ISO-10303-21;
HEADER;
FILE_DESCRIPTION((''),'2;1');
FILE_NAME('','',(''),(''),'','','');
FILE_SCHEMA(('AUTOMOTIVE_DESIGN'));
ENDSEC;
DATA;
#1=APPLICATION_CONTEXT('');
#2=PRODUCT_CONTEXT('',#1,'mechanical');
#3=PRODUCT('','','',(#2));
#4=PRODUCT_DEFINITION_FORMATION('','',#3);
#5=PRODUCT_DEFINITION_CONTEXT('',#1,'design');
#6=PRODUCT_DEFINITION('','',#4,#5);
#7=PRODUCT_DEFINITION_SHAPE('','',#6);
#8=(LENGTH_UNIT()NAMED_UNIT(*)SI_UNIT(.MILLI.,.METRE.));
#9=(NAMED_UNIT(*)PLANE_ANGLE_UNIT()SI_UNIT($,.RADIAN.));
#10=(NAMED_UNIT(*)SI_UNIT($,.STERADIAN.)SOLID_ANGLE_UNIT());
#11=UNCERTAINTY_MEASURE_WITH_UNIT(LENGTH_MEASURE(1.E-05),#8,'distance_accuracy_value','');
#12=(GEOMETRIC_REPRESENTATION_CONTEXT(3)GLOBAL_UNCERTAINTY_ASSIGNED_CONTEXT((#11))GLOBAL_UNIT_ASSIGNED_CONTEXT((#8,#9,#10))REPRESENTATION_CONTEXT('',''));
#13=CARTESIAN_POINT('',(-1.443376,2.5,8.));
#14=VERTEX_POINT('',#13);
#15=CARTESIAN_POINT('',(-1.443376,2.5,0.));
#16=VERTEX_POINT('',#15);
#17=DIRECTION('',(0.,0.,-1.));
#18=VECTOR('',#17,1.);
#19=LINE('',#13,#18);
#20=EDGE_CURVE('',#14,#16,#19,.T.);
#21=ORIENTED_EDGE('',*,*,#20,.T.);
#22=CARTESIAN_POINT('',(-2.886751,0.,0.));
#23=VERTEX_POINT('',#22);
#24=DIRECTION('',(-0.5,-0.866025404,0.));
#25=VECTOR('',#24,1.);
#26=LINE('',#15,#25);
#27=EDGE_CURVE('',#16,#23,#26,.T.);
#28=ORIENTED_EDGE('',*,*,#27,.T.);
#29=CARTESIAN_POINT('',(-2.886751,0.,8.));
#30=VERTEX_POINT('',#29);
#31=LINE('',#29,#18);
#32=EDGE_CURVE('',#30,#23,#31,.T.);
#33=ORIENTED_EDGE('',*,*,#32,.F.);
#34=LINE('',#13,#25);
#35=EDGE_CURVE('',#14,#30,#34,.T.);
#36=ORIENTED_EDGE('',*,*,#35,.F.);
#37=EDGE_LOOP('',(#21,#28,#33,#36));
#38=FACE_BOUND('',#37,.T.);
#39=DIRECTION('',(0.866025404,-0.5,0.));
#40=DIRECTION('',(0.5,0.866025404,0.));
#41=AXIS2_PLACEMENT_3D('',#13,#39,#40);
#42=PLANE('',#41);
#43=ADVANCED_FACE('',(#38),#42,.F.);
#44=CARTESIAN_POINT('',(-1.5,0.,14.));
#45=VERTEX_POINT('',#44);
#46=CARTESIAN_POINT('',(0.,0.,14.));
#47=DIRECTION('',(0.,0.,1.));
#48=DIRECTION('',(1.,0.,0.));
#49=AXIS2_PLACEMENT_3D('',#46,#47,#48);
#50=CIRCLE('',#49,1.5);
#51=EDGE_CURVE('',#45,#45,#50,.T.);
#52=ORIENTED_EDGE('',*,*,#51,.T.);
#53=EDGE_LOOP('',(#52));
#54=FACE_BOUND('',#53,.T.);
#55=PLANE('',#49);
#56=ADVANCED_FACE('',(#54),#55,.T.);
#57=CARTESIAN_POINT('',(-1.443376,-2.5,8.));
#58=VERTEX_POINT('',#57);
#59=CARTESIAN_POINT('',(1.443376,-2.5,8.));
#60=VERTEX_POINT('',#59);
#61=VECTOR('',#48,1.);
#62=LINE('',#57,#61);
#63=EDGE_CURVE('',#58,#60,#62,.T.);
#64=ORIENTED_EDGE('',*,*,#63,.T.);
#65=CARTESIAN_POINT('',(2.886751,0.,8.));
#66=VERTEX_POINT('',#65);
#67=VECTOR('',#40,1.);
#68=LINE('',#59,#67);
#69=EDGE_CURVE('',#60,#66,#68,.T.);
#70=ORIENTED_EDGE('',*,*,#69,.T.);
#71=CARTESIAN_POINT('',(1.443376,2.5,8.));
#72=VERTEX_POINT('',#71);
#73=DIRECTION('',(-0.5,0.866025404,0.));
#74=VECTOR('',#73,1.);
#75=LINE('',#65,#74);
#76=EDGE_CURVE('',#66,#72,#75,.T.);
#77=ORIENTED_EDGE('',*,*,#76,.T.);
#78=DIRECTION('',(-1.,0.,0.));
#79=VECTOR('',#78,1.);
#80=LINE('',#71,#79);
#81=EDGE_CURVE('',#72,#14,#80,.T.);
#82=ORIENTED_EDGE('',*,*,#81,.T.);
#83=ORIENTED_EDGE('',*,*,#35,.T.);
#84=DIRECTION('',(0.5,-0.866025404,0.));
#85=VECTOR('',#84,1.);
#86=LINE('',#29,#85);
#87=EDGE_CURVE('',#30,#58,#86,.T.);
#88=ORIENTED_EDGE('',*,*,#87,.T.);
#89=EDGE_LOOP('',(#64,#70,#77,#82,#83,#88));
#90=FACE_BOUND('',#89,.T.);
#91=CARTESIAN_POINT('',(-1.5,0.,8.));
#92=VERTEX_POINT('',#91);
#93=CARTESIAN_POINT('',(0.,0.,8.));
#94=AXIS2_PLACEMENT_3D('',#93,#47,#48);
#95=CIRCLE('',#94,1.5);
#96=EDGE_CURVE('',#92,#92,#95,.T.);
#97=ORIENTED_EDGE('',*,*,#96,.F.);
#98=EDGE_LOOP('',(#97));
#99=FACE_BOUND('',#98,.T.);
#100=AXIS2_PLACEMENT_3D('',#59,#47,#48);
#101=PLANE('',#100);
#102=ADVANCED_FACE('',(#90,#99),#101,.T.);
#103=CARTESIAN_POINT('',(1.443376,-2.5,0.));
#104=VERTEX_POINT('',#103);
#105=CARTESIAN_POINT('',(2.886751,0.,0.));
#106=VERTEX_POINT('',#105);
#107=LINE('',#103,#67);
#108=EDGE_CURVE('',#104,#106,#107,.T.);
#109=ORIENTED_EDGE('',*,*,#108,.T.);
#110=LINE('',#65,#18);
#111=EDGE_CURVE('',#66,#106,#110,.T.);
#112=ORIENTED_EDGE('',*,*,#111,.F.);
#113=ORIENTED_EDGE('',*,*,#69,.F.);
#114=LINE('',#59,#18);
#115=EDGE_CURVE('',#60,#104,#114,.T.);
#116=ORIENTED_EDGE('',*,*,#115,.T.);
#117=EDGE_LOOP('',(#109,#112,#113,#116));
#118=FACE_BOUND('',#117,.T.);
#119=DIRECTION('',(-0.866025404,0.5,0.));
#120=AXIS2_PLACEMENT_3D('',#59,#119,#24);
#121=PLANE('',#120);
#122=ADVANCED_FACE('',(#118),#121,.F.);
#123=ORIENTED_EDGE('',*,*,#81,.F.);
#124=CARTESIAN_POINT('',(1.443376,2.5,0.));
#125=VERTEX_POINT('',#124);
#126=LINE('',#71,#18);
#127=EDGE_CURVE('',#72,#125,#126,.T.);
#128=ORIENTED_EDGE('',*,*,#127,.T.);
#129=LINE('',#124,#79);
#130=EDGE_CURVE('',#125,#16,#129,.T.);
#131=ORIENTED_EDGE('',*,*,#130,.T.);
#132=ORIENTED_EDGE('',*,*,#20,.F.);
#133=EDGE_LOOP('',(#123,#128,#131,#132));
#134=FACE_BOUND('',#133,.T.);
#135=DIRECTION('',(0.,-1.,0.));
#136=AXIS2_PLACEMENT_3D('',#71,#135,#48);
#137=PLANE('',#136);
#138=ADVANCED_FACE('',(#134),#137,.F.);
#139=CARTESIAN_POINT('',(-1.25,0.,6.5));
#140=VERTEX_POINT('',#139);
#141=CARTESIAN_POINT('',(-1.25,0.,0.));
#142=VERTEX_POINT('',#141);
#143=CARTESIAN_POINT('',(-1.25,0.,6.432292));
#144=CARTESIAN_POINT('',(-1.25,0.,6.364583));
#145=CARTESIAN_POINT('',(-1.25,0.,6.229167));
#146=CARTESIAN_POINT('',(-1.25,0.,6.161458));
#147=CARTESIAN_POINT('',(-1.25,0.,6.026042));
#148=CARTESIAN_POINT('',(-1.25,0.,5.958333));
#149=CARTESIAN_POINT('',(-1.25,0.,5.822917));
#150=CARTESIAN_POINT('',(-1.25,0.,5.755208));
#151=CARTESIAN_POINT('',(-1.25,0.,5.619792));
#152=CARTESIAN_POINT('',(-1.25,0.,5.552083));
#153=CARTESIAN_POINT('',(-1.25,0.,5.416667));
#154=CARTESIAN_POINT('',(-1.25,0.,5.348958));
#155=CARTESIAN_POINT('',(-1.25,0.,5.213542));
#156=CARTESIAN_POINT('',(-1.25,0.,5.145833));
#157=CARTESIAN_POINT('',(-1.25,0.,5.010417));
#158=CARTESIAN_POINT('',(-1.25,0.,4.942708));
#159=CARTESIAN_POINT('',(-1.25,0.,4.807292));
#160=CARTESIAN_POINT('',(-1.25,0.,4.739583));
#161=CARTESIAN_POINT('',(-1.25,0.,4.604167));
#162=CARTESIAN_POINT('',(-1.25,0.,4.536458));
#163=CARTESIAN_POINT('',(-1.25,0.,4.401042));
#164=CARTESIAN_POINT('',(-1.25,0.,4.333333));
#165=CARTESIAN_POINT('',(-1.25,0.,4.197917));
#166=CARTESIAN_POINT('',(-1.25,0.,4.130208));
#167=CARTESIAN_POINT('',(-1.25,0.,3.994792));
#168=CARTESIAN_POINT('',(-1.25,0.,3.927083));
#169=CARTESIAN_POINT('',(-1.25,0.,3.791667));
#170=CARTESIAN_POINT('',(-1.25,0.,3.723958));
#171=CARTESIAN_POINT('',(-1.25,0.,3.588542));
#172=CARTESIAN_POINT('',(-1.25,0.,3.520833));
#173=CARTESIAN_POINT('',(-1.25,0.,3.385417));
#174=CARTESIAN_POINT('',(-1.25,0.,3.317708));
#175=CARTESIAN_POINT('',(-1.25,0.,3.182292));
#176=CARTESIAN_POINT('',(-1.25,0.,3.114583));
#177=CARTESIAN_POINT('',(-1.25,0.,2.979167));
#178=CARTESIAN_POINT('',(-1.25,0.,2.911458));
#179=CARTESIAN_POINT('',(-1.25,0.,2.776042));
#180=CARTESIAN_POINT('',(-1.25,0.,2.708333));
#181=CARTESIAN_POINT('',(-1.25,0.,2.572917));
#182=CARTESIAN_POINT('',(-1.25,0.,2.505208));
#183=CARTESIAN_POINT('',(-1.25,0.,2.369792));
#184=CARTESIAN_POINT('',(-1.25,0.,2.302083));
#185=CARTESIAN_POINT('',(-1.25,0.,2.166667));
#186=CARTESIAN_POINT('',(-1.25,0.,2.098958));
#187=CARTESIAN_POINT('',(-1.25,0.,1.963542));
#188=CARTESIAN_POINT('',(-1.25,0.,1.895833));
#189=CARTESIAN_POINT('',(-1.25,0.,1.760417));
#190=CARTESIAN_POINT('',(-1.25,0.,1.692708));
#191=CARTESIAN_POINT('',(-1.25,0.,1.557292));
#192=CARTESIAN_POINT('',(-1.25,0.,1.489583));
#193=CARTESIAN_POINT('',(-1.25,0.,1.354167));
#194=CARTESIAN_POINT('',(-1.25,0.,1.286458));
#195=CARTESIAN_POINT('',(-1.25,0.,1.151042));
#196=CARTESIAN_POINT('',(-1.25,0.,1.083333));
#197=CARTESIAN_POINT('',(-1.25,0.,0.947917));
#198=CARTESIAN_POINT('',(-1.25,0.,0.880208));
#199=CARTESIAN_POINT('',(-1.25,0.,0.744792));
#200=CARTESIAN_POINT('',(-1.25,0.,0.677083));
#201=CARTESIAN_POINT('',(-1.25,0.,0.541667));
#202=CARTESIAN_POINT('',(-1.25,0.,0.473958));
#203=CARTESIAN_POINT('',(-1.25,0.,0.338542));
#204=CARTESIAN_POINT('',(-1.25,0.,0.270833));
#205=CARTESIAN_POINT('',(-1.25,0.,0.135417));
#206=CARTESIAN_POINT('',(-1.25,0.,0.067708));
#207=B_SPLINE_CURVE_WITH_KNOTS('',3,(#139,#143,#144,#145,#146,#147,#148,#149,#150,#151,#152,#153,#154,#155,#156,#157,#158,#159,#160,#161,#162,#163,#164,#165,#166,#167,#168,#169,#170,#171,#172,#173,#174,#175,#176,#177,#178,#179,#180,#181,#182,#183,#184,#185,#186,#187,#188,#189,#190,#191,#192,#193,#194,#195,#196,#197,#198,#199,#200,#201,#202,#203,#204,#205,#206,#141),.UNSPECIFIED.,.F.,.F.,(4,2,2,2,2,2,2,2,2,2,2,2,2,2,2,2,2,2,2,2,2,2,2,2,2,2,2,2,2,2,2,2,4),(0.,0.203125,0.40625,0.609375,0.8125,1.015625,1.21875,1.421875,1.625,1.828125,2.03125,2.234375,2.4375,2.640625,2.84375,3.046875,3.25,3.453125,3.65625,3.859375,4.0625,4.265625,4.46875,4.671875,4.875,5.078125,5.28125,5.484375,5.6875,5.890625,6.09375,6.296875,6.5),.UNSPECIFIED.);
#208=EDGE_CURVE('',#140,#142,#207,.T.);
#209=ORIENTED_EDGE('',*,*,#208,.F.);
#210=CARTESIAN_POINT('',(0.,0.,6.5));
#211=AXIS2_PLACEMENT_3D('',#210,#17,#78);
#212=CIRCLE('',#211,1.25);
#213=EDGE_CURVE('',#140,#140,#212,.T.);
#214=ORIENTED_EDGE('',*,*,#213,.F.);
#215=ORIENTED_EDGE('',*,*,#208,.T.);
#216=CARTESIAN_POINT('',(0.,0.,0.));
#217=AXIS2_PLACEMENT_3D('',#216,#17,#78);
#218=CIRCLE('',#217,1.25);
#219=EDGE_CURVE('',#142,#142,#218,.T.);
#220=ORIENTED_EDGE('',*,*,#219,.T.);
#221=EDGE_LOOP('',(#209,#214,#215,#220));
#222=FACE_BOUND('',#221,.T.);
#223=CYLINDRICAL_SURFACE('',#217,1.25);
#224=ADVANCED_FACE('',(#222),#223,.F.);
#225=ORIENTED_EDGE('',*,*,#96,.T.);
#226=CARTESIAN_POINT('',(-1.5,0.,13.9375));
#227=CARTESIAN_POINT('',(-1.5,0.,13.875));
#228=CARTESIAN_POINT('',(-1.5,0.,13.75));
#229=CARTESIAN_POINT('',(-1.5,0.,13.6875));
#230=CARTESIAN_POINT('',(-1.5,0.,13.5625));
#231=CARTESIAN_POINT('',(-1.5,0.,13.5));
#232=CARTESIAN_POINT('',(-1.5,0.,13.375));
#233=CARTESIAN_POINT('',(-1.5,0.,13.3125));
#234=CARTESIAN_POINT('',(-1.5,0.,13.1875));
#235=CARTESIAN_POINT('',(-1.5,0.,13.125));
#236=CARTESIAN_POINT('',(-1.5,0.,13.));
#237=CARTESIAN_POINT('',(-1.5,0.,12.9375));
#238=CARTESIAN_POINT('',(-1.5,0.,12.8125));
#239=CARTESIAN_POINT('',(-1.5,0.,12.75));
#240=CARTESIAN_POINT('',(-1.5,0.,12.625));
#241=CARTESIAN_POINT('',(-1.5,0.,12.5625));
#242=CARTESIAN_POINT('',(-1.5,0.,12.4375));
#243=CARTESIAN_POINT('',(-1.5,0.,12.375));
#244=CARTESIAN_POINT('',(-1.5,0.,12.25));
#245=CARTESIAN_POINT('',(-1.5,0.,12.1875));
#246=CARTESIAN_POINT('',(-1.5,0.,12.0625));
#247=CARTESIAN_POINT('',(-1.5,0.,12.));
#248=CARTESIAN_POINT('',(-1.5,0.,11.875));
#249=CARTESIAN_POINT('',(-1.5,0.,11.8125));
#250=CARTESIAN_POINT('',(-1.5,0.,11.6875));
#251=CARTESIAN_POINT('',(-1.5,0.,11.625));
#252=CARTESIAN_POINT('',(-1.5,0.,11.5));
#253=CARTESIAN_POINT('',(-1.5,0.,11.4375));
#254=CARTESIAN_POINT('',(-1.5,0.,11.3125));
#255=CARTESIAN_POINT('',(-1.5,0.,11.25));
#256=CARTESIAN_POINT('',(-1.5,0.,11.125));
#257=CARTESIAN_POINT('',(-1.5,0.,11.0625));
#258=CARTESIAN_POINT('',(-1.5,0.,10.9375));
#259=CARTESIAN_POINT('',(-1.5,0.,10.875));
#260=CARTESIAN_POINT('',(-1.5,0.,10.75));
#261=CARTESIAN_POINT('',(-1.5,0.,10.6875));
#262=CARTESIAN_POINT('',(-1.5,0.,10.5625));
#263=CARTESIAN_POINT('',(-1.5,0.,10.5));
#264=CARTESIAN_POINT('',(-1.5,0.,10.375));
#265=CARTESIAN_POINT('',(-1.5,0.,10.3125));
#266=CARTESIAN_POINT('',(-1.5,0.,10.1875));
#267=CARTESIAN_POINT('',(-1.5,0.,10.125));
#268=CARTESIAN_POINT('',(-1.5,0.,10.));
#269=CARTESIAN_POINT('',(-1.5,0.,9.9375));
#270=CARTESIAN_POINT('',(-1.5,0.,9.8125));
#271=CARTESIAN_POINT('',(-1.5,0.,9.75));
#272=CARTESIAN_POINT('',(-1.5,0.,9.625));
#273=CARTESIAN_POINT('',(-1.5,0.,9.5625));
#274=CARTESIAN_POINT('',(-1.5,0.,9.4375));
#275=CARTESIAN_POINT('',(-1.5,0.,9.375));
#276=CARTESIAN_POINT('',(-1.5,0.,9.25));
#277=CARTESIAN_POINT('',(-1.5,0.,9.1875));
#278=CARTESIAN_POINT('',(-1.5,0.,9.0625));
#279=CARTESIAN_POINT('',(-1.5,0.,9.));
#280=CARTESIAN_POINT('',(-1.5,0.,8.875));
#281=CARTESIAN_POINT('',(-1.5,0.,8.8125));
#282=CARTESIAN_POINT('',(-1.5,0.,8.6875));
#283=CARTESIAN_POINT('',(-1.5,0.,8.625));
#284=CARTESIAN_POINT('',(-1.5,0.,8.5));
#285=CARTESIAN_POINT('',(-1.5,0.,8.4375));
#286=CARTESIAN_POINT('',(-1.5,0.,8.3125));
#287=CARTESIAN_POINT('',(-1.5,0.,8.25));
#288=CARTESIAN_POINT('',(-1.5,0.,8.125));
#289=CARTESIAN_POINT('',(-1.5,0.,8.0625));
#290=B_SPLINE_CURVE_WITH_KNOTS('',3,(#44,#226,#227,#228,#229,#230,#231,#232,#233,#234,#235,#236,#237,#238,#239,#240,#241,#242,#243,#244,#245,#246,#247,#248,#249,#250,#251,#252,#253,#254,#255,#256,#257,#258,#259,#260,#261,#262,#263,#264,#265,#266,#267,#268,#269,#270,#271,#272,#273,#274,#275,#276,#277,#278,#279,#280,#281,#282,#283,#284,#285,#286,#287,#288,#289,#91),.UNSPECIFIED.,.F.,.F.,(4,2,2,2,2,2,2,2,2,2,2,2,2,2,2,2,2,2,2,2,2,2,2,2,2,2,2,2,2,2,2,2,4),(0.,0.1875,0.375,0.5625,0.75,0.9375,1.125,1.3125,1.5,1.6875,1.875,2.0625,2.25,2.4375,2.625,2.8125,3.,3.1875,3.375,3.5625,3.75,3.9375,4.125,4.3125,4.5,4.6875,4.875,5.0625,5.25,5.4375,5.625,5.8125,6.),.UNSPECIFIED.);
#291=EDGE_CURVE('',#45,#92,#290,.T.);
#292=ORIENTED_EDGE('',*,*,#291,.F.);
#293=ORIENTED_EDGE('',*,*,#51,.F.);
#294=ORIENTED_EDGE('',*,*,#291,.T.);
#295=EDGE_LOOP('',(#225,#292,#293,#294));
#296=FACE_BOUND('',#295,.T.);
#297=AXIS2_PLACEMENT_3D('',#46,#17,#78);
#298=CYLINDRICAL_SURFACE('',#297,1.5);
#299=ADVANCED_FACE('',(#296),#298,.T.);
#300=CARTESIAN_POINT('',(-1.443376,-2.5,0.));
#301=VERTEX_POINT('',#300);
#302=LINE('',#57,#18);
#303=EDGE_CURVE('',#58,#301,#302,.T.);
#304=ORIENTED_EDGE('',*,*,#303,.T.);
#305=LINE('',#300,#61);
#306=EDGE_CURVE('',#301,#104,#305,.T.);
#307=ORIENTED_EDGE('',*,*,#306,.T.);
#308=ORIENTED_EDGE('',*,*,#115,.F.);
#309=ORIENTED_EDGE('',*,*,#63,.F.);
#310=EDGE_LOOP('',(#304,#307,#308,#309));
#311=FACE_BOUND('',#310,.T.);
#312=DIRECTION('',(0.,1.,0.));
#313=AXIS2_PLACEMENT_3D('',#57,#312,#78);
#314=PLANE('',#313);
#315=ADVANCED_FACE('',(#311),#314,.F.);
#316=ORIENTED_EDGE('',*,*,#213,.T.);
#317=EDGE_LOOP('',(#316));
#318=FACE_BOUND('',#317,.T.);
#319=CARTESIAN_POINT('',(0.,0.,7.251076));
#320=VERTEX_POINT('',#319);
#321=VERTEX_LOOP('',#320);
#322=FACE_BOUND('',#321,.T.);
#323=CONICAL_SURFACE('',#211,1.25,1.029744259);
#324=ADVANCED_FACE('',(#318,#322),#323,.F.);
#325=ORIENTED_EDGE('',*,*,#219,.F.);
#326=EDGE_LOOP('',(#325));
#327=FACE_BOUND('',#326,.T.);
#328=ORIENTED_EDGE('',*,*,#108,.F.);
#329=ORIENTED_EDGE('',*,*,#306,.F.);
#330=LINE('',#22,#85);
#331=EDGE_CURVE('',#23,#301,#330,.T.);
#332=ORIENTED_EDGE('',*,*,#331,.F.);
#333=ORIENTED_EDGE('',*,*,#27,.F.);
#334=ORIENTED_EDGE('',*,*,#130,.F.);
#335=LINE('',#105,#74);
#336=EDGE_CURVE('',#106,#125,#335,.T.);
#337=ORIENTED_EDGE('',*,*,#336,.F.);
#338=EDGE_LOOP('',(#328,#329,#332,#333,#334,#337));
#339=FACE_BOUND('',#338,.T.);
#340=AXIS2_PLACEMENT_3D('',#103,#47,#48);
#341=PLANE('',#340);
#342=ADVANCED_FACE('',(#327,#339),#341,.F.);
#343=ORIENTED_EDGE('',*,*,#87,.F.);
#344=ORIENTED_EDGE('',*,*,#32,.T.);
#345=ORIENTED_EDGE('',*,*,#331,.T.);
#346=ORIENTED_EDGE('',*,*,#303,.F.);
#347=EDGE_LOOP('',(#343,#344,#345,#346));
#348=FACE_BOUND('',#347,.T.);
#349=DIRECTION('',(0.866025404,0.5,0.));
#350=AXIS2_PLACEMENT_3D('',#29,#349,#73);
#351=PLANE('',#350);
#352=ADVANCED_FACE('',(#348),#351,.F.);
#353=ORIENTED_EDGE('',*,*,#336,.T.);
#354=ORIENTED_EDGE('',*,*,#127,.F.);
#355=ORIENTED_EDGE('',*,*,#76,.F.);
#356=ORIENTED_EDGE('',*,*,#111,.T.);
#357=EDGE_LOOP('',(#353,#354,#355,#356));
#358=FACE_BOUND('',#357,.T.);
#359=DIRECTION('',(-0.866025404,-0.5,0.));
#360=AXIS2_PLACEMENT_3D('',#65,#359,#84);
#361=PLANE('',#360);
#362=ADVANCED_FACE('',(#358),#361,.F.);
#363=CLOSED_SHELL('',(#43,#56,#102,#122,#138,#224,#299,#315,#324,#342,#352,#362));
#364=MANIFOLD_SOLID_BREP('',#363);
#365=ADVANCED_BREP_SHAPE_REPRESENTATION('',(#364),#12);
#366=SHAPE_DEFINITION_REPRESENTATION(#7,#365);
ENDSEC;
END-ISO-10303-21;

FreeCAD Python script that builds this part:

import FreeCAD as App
import Part
import Sketcher
from FreeCAD import Vector
Q = App.Units.Quantity


def add_polygon(sketch, points):
    """Adds a closed chain of lines whose ends are joined by coincident constraints."""
    first, n = sketch.GeometryCount, len(points)
    for a, b in zip(points, points[1:] + points[:1]):
        sketch.addGeometry(Part.LineSegment(App.Vector(*a, 0), App.Vector(*b, 0)), False)
    for i in range(n):
        sketch.addConstraint(Sketcher.Constraint("Coincident", first + i, 2, first + (i + 1) % n, 1))

doc = App.newDocument("Part")
body = doc.addObject("PartDesign::Body", "Body")

# Sketch on XY plane
sketch1 = body.newObject("Sketcher::SketchObject", "Sketch")
sketch1.AttachmentSupport = (doc.getObject("XY_Plane"), [""])
sketch1.MapMode = "FlatFace"
add_polygon(sketch1, [(1.4, -2.5), (2.9, 0), (1.4, 2.5), (-1.4, 2.5), (-2.9, 0), (-1.4, -2.5)])  # lines 0-5
sketch1.addConstraint(Sketcher.Constraint("Horizontal", 2))
sketch1.addConstraint(Sketcher.Constraint("Horizontal", 5))
sketch1.addConstraint(Sketcher.Constraint("Symmetric", 0, 2, 3, 2, -1, 1))
sketch1.addConstraint(Sketcher.Constraint("Symmetric", 1, 2, 4, 2, -1, 1))
sketch1.addConstraint(Sketcher.Constraint("PointOnObject", 0, 2, -1))
sketch1.addConstraint(Sketcher.Constraint("Parallel", 0, 3))
sketch1.addConstraint(Sketcher.Constraint("Vertical", 2, 2, 4, 2))
sketch1.addConstraint(Sketcher.Constraint("Angle", 0, Q("60 deg")))
sketch1.addConstraint(Sketcher.Constraint("DistanceY", 4, 2, 2, 2, 5.0))
sketch1.addConstraint(Sketcher.Constraint("DistanceX", 2, 2, 2, 1, 2.886751))
pad1 = body.newObject("PartDesign::Pad", "Pad")
pad1.Profile = sketch1
pad1.Length = 8

# Sketch on XY plane
sketch2 = body.newObject("Sketcher::SketchObject", "Sketch001")
sketch2.AttachmentSupport = (doc.getObject("XY_Plane"), [""])
sketch2.MapMode = "FlatFace"
sketch2.AttachmentOffset = App.Placement(Vector(0, 0, 8), App.Rotation())
sketch2.addGeometry(Part.Circle(Vector(0, 0, 0), Vector(0, 0, 1), 1.5), False)
sketch2.addConstraint(Sketcher.Constraint("Coincident", 0, 3, -1, 1))
sketch2.addConstraint(Sketcher.Constraint("Diameter", 0, 3.0))
pad2 = body.newObject("PartDesign::Pad", "Pad001")
pad2.Profile = sketch2
pad2.Length = 6

# Sketch on XY plane
sketch3 = body.newObject("Sketcher::SketchObject", "Sketch002")
sketch3.AttachmentSupport = (doc.getObject("XY_Plane"), [""])
sketch3.MapMode = "FlatFace"
sketch3.addGeometry(Part.Circle(Vector(0, 0, 0), Vector(0, 0, 1), 1.2), False)
sketch3.addConstraint(Sketcher.Constraint("Coincident", 0, 3, -1, 1))
sketch3.addConstraint(Sketcher.Constraint("Diameter", 0, 2.5))
doc.recompute()
hole = body.newObject("PartDesign::Hole", "Hole")
hole.Profile = sketch3
hole.ThreadType = "None"
hole.Diameter = 2.5
hole.DepthType = "Dimension"
hole.Depth = 6.5
hole.DrillPoint = "Angled"
hole.DrillPointAngle = 118
hole.Reversed = True

doc.recompute()
